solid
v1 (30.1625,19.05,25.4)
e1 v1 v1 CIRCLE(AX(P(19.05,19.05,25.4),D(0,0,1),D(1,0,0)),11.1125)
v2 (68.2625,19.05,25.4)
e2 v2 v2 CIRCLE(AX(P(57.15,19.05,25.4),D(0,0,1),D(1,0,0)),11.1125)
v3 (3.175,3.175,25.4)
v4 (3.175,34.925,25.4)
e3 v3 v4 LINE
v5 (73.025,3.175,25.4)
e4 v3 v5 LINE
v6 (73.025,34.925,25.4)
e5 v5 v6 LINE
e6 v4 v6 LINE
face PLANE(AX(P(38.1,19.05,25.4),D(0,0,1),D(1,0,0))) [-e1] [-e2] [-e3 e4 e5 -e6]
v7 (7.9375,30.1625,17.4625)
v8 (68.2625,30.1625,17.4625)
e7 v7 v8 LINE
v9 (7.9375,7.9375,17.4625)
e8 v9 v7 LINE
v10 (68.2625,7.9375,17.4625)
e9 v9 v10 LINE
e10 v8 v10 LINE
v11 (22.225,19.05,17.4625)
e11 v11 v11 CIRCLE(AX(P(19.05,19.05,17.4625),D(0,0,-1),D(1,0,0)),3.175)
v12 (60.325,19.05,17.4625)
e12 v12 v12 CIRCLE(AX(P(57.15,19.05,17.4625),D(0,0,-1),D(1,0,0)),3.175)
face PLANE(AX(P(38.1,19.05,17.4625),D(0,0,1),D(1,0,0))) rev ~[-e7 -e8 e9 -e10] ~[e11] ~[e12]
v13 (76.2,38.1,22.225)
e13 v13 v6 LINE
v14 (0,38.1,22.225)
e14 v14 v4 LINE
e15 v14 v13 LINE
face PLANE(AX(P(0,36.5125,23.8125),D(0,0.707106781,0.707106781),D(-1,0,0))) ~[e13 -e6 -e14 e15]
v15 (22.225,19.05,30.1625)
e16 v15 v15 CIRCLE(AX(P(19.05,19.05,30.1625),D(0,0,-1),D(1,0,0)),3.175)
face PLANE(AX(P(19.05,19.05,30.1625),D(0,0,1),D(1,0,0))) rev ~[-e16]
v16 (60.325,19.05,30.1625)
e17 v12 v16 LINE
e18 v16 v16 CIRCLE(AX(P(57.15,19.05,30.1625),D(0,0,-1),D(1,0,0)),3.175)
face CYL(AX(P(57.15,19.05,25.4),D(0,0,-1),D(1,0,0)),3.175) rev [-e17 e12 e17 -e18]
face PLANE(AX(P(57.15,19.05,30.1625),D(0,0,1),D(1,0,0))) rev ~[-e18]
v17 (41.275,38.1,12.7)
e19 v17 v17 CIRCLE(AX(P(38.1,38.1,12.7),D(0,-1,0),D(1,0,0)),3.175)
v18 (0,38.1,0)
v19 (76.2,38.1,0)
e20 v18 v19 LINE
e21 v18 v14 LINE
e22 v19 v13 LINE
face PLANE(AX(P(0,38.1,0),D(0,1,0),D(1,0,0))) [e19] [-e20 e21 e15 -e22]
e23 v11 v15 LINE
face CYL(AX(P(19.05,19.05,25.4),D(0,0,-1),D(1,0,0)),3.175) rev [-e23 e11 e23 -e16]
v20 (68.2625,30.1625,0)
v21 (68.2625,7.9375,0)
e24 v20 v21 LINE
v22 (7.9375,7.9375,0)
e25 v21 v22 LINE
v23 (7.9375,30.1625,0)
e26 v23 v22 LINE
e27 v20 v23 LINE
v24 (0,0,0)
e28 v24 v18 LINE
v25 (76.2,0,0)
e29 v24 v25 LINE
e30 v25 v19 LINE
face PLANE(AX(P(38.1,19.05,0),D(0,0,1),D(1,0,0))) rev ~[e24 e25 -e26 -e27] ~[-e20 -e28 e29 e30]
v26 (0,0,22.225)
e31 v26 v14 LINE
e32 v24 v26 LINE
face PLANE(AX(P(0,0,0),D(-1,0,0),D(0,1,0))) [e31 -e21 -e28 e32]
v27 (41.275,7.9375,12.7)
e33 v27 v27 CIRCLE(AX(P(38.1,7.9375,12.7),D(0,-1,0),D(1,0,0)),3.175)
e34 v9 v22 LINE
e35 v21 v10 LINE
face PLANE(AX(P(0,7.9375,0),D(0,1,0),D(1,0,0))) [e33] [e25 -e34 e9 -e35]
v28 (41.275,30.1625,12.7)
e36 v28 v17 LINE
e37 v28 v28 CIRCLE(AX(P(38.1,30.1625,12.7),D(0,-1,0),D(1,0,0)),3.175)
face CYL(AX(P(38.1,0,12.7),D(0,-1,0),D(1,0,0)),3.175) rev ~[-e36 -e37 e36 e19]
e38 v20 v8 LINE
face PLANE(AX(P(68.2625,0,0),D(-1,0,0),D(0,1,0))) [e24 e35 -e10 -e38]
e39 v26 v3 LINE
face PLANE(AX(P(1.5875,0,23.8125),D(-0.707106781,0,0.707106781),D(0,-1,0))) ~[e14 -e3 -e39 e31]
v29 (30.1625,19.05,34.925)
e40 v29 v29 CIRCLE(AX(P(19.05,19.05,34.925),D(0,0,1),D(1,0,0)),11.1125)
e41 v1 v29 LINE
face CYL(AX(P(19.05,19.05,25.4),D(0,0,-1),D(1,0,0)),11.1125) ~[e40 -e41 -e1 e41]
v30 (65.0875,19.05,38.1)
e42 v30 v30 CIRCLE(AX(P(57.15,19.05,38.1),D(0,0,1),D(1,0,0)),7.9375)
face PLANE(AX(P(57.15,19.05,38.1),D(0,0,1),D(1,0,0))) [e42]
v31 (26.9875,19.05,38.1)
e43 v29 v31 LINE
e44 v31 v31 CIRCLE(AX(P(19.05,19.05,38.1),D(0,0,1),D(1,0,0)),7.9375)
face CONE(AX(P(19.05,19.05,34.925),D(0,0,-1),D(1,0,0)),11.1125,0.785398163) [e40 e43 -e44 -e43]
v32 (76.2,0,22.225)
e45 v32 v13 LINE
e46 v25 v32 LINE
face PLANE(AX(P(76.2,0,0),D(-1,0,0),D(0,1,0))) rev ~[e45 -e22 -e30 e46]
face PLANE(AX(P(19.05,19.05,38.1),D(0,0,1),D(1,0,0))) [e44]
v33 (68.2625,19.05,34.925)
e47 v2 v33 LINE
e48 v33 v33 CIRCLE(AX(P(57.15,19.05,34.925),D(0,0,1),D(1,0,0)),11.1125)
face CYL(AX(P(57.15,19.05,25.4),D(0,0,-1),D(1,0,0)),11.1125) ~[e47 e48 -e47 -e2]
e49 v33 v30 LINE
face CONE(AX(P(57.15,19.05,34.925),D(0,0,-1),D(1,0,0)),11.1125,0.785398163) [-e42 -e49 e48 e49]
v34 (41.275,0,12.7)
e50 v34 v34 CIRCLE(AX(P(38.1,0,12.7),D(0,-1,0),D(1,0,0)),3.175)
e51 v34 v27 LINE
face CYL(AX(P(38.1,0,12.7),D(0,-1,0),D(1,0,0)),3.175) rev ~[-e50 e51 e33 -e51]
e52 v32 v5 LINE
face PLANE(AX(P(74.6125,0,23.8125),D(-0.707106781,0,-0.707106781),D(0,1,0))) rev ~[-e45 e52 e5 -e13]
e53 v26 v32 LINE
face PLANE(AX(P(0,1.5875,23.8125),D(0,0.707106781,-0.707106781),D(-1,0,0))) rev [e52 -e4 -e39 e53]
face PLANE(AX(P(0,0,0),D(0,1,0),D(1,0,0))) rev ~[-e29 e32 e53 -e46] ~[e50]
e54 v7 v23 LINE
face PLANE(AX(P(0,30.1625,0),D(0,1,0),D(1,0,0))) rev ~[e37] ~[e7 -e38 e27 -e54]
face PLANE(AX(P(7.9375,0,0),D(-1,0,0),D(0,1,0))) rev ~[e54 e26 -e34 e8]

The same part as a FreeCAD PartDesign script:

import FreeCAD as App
import Part
import Sketcher
Q = App.Units.Quantity


def edges_at(feature, points):
    """Names of the edges that pass closest to the given points."""
    edges = feature.Shape.Edges
    near = lambda p: min(range(len(edges)), key=lambda i: edges[i].distToShape(Part.Vertex(*p))[0])
    return sorted({f"Edge{near(p) + 1}" for p in points})


def faces_at(feature, points):
    """Names of the faces that lie closest to the given points."""
    faces = feature.Shape.Faces
    near = lambda p: min(range(len(faces)), key=lambda i: faces[i].distToShape(Part.Vertex(*p))[0])
    return sorted({f"Face{near(p) + 1}" for p in points})


def add_polygon(sketch, points):
    """Adds a closed chain of lines whose ends are joined by coincident constraints."""
    first, n = sketch.GeometryCount, len(points)
    for a, b in zip(points, points[1:] + points[:1]):
        sketch.addGeometry(Part.LineSegment(App.Vector(*a, 0), App.Vector(*b, 0)), False)
    for i in range(n):
        sketch.addConstraint(Sketcher.Constraint("Coincident", first + i, 2, first + (i + 1) % n, 1))

doc = App.newDocument("Part")
body = doc.addObject("PartDesign::Body", "Body")

sketch1 = doc.addObject("Sketcher::SketchObject", "Sketch")
body.addObject(sketch1)
sketch1.AttachmentSupport = (doc.XY_Plane, [""])
sketch1.MapMode = "FlatFace"
add_polygon(sketch1, [(0, 38.1), (0, 0), (76.2, 0), (76.2, 38.1)])
sketch1.addConstraint([
    Sketcher.Constraint("Vertical", 0),
    Sketcher.Constraint("Horizontal", 1),
    Sketcher.Constraint("Vertical", 2),
    Sketcher.Constraint("Horizontal", 3),
    Sketcher.Constraint("Coincident", 0, 2, -1, 1),
    Sketcher.Constraint("DistanceX", 1, 1, 1, 2, Q("3 in")),
    Sketcher.Constraint("DistanceY", 0, 2, 0, 1, Q("1.5 in")),
])
pad1 = doc.addObject("PartDesign::Pad", "Pad")
body.addObject(pad1)
pad1.Profile = sketch1
pad1.Length = Q("1 in")

sketch2 = doc.addObject("Sketcher::SketchObject", "Sketch001")
body.addObject(sketch2)
sketch2.AttachmentSupport = (doc.XY_Plane, [""])
sketch2.MapMode = "FlatFace"
sketch2.AttachmentOffset = App.Placement(App.Vector(0, 0, 1 * 25.4), App.Rotation())
sketch2.addGeometry([
    Part.Circle(App.Vector(19.05, 19.05, 0), App.Vector(0, 0, 1), 11.1125),
    Part.Circle(App.Vector(57.15, 19.05, 0), App.Vector(0, 0, 1), 11.1125),
], False)
sketch2.addConstraint([
    Sketcher.Constraint("Equal", 0, 1),
    Sketcher.Constraint("Horizontal", 0, 3, 1, 3),
    Sketcher.Constraint("Diameter", 0, Q("0.875 in")),
    Sketcher.Constraint("DistanceX", 0, 3, 1, 3, Q("1.5 in")),
    Sketcher.Constraint("DistanceX", -1, 1, 0, 3, Q("0.75 in")),
    Sketcher.Constraint("DistanceY", -1, 1, 0, 3, Q("0.75 in")),
])
pad2 = doc.addObject("PartDesign::Pad", "Pad001")
body.addObject(pad2)
pad2.Profile = sketch2
pad2.Length = Q("0.5 in")
doc.recompute()

thickness = doc.addObject("PartDesign::Thickness", "Thickness")
body.addObject(thickness)
thickness.Base = (pad2, faces_at(pad2, [(38.1, 19.05, 0)]))
thickness.Value = Q("0.3125 in")
thickness.Reversed = True
thickness.Join = "Intersection"

sketch3 = doc.addObject("Sketcher::SketchObject", "Sketch002")
body.addObject(sketch3)
sketch3.AttachmentSupport = (doc.XZ_Plane, [""])
sketch3.MapMode = "FlatFace"
sketch3.addGeometry(Part.Circle(App.Vector(38.1, 12.7, 0), App.Vector(0, 0, 1), 3.175), False)
sketch3.addConstraint([
    Sketcher.Constraint("Diameter", 0, Q("0.25 in")),
    Sketcher.Constraint("DistanceX", -1, 1, 0, 3, Q("1.5 in")),
    Sketcher.Constraint("DistanceY", -1, 1, 0, 3, Q("0.5 in")),
])
pocket1 = doc.addObject("PartDesign::Pocket", "Pocket")
body.addObject(pocket1)
pocket1.Profile = sketch3
pocket1.Length = Q("1.5 in")
doc.recompute()

chamfer = doc.addObject("PartDesign::Chamfer", "Chamfer")
body.addObject(chamfer)
chamfer.Base = (pocket1, edges_at(pocket1, [
    (7.938, 19.05, 38.1),
    (46.038, 19.05, 38.1),
    (38.1, 0, 25.4),
    (0, 19.05, 25.4),
    (38.1, 38.1, 25.4),
    (76.2, 19.05, 25.4),
]))
chamfer.ChamferType = "Two distances"
chamfer.Size = Q("0.125 in")
chamfer.Size2 = Q("0.125 in")

doc.recompute()
